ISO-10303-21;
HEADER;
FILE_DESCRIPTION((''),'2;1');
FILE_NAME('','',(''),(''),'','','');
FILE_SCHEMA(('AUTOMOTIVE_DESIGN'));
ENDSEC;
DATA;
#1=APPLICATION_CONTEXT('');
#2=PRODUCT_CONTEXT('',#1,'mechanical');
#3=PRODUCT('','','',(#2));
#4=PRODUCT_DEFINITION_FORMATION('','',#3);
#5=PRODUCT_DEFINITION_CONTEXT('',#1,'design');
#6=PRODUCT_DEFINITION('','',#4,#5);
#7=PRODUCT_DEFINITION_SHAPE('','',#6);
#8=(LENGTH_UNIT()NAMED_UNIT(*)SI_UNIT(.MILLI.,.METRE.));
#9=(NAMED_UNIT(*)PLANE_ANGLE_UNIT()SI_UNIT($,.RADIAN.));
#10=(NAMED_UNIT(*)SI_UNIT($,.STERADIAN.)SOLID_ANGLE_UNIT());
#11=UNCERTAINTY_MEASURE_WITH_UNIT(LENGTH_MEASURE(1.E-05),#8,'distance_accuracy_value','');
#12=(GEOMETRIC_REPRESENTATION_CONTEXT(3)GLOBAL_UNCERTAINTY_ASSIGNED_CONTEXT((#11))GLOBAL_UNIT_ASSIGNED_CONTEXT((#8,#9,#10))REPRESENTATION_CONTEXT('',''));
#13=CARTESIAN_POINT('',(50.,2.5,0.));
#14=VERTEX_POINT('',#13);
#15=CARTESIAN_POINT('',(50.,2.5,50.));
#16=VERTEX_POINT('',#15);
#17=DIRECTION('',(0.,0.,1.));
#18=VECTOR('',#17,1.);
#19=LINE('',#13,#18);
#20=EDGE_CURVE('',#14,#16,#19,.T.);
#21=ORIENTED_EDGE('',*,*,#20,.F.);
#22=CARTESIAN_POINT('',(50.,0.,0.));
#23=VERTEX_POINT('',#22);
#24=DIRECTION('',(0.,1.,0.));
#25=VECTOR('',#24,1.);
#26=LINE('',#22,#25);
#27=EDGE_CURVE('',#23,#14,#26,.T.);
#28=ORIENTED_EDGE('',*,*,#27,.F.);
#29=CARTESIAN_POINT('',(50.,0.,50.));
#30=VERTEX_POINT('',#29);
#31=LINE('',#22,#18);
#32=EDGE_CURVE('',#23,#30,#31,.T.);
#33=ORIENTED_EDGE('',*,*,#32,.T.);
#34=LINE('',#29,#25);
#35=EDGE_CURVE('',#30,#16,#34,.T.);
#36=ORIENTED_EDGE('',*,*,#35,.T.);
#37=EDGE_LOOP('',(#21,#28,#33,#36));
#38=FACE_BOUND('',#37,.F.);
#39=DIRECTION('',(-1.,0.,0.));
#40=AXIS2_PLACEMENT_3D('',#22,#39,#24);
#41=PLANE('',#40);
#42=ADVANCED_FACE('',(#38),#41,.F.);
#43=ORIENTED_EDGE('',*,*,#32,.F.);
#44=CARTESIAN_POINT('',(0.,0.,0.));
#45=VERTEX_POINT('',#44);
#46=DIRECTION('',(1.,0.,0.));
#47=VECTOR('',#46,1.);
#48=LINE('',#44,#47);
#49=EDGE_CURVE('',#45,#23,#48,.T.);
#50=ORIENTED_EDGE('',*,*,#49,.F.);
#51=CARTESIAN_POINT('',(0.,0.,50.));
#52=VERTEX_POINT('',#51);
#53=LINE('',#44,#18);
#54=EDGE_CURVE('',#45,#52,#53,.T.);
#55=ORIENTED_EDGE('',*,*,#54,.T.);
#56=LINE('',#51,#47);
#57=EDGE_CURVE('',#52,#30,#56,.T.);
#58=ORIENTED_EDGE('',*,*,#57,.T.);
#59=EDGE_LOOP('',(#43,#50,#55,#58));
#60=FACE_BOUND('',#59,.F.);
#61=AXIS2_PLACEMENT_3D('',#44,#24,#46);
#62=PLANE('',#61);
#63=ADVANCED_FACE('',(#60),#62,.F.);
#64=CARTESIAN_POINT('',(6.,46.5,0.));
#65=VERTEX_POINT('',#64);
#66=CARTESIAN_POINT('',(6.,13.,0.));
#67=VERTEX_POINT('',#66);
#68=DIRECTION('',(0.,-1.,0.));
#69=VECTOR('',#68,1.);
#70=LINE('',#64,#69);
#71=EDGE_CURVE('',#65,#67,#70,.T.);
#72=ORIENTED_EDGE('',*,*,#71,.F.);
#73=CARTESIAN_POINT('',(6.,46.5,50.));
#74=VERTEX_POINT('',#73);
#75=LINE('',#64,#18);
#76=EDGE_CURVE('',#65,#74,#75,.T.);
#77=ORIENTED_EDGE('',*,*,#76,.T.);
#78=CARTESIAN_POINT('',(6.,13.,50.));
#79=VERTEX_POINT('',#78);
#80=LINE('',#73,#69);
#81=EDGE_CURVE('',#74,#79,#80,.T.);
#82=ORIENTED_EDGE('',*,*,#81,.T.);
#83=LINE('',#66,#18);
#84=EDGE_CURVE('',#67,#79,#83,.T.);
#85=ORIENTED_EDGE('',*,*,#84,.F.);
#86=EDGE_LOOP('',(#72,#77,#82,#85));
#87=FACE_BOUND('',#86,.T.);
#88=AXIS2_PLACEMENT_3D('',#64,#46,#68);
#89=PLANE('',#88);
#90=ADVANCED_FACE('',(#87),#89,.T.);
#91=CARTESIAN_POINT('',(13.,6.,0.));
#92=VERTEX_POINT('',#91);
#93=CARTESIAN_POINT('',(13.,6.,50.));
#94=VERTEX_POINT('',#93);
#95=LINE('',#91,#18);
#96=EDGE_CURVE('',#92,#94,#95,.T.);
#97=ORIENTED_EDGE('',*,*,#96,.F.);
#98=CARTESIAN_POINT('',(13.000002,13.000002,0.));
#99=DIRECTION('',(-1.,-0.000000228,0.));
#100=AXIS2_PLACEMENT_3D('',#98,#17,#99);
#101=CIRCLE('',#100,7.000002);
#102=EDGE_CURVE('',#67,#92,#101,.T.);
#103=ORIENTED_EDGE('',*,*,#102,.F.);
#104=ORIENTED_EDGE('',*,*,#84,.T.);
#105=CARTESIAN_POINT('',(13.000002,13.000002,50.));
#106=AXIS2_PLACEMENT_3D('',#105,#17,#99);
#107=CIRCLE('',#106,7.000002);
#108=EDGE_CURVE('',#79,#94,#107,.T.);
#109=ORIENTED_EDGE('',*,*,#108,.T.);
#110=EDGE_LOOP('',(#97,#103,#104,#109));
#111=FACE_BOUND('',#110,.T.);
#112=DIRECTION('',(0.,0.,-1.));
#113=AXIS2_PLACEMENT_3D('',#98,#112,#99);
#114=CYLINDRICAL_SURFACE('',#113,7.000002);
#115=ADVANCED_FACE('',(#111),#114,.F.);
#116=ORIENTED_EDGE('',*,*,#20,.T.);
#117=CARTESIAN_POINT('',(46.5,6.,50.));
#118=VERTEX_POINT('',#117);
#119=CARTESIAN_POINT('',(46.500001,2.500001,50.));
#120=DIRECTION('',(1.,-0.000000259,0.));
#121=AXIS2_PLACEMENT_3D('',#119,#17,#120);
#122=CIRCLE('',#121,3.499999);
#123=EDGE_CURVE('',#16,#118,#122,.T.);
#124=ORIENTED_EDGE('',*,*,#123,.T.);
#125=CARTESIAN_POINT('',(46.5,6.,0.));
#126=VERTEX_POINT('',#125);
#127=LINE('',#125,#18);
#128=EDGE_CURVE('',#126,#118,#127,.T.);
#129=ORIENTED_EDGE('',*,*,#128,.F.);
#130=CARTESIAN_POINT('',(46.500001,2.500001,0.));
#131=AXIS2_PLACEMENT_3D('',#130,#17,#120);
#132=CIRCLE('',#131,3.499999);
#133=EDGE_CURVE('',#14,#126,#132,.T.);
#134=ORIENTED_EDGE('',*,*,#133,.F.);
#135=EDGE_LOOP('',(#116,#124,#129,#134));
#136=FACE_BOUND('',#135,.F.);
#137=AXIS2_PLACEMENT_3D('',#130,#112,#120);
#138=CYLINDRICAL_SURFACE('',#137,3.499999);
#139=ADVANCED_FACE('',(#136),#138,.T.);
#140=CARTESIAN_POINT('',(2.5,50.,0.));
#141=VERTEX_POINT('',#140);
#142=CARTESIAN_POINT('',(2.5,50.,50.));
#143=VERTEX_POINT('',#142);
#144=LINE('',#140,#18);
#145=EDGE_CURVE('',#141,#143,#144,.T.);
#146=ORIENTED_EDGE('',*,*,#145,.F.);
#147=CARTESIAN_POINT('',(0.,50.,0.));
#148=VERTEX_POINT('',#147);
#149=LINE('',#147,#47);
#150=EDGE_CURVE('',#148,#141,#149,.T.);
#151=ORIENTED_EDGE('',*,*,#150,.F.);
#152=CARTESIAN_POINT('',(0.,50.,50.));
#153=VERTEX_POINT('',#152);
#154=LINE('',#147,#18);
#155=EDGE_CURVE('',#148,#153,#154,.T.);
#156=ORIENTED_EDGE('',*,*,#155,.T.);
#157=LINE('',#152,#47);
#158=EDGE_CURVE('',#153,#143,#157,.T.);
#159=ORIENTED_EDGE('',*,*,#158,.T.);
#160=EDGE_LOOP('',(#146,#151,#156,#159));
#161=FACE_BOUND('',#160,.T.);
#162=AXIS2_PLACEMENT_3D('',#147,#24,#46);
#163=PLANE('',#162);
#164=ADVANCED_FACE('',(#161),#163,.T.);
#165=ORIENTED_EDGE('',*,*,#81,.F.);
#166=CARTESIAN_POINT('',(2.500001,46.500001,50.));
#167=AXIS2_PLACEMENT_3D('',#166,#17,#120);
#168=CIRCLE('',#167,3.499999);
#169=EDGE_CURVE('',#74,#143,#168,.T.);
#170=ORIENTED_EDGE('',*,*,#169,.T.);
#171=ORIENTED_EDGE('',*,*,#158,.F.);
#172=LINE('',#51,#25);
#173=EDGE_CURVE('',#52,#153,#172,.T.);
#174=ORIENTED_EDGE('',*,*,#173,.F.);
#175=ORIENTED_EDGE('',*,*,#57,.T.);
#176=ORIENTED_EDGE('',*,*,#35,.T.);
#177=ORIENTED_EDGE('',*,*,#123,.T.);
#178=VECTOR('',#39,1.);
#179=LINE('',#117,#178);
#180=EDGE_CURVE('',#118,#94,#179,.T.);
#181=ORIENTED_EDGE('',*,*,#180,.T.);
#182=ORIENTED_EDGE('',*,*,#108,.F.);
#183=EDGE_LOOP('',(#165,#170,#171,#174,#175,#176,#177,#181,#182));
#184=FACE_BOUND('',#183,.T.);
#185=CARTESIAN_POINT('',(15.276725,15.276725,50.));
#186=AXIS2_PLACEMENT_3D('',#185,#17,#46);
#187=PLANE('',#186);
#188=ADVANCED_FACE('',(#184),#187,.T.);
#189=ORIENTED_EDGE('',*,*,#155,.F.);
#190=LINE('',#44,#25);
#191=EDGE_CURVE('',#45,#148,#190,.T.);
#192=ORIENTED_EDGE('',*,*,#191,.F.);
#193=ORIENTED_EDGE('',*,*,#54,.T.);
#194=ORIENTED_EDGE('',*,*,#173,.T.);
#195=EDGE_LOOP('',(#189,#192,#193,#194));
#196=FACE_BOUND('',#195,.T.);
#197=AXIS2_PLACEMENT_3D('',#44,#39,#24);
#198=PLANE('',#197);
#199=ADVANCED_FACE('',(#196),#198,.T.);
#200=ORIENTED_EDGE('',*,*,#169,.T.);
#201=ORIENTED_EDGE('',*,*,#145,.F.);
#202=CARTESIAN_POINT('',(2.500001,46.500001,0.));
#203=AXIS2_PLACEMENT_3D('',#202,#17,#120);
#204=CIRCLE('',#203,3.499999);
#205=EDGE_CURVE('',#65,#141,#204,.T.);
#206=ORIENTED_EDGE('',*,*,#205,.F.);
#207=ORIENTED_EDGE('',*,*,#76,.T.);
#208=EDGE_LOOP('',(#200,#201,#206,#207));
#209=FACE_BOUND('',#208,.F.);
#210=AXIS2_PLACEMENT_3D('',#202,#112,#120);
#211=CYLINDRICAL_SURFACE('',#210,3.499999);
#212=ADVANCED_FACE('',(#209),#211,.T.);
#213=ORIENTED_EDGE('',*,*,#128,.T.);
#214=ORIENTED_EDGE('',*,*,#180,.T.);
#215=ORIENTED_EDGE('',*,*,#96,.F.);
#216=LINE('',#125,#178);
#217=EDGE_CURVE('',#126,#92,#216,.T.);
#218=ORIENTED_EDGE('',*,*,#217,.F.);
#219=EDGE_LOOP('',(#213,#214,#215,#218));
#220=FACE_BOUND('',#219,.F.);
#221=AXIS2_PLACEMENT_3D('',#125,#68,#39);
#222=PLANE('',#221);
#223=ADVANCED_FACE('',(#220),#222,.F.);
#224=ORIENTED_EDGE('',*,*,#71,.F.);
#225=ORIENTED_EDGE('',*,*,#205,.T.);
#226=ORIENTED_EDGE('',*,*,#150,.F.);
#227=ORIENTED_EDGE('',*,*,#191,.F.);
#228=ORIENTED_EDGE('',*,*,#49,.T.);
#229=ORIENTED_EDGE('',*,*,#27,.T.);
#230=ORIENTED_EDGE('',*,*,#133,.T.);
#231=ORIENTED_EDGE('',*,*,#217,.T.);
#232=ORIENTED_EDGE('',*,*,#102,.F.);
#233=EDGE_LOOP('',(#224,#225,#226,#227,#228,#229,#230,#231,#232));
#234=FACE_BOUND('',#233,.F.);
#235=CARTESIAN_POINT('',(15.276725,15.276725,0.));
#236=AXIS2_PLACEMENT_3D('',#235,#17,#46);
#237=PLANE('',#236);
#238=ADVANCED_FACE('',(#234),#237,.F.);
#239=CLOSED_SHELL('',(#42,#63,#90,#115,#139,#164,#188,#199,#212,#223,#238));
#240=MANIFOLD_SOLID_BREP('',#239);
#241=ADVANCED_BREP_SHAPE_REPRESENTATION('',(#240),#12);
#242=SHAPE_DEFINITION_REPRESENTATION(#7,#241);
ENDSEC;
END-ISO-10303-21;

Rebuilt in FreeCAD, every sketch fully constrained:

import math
import FreeCAD as App
import Part
import Sketcher

V = App.Vector

doc = App.newDocument("Part")
body = doc.addObject("PartDesign::Body", "Body")

# Sketch on XY plane
sketch1 = doc.addObject("Sketcher::SketchObject", "Sketch")
body.addObject(sketch1)
sketch1.AttachmentSupport = (doc.XY_Plane, [""])
sketch1.MapMode = "FlatFace"
sketch1.addGeometry([
    Part.LineSegment(V(0, 0, 0), V(50, 0, 0)),  # 0
    Part.LineSegment(V(50, 0, 0), V(50, 2.5, 0)),  # 1
    Part.ArcOfCircle(Part.Circle(V(46.5, 2.5, 0), V(0, 0, 1), 3.5), math.radians(0), math.radians(90)),  # 2
    Part.LineSegment(V(46.5, 6, 0), V(13, 6, 0)),  # 3
    Part.ArcOfCircle(Part.Circle(V(13, 13, 0), V(0, 0, 1), 7), math.radians(-180), math.radians(-90)),  # 4
    Part.LineSegment(V(6, 13, 0), V(6, 46.5, 0)),  # 5
    Part.ArcOfCircle(Part.Circle(V(2.5, 46.5, 0), V(0, 0, 1), 3.5), math.radians(0), math.radians(90)),  # 6
    Part.LineSegment(V(2.5, 50, 0), V(0, 50, 0)),  # 7
    Part.LineSegment(V(0, 50, 0), V(0, 0, 0)),  # 8
], False)
sketch1.addConstraint([
    Sketcher.Constraint("Coincident", 0, 2, 1, 1),
    Sketcher.Constraint("Tangent", 1, 2, 2, 1),
    Sketcher.Constraint("Tangent", 2, 2, 3, 1),
    Sketcher.Constraint("Tangent", 3, 2, 4, 2),
    Sketcher.Constraint("Tangent", 4, 1, 5, 1),
    Sketcher.Constraint("Tangent", 5, 2, 6, 1),
    Sketcher.Constraint("Tangent", 6, 2, 7, 1),
    Sketcher.Constraint("Coincident", 7, 2, 8, 1),
    Sketcher.Constraint("Coincident", 8, 2, 0, 1),
    Sketcher.Constraint("Horizontal", 0),
    Sketcher.Constraint("Vertical", 1),
    Sketcher.Constraint("Horizontal", 3),
    Sketcher.Constraint("Vertical", 5),
    Sketcher.Constraint("Horizontal", 7),
    Sketcher.Constraint("Vertical", 8),
    Sketcher.Constraint("Coincident", 8, 2, -1, 1),
    Sketcher.Constraint("Equal", 2, 6),
    Sketcher.Constraint("Equal", 7, 1),
    Sketcher.Constraint("Equal", 3, 5),
    Sketcher.Constraint("Radius", 4, 7.000002),
    Sketcher.Constraint("Radius", 2, 3.499999),
    Sketcher.Constraint("DistanceX", 0, 1, 0, 2, 50.0),
    Sketcher.Constraint("DistanceX", 3, 2, 3, 1, 33.5),
])
pad1 = doc.addObject("PartDesign::Pad", "Pad")
body.addObject(pad1)
pad1.Profile = sketch1
pad1.Length = 50

doc.recompute()
